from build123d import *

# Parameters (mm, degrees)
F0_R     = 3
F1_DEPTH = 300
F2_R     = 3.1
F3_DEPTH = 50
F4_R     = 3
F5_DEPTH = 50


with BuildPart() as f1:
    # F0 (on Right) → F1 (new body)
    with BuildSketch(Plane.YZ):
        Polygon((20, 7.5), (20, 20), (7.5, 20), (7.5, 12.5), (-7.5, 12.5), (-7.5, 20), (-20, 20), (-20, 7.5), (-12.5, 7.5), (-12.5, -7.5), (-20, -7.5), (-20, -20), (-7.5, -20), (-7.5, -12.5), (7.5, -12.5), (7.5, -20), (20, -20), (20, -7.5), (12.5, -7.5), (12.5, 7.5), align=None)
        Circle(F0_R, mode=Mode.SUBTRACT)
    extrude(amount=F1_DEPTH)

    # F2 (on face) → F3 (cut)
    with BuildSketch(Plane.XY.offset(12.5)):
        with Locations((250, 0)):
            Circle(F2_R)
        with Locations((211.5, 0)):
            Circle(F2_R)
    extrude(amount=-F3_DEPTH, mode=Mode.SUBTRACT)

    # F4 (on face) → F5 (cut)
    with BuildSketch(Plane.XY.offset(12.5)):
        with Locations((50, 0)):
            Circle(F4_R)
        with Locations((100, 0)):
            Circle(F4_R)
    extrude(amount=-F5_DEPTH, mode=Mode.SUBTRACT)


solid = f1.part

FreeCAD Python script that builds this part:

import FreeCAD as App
import Part
import Sketcher
from FreeCAD import Vector
Q = App.Units.Quantity


def add_polygon(sketch, points):
    """Adds a closed chain of lines whose ends are joined by coincident constraints."""
    first, n = sketch.GeometryCount, len(points)
    for a, b in zip(points, points[1:] + points[:1]):
        sketch.addGeometry(Part.LineSegment(App.Vector(*a, 0), App.Vector(*b, 0)), False)
    for i in range(n):
        sketch.addConstraint(Sketcher.Constraint("Coincident", first + i, 2, first + (i + 1) % n, 1))

doc = App.newDocument("Part")
body = doc.addObject("PartDesign::Body", "Body")

sketch1 = doc.addObject("Sketcher::SketchObject", "Sketch")
body.addObject(sketch1)
sketch1.AttachmentSupport = (doc.YZ_Plane, [""])
sketch1.MapMode = "FlatFace"
add_polygon(sketch1, [(20, 7.5), (20, 20), (7.5, 20), (7.5, 12.5), (-7.5, 12.5), (-7.5, 20), (-20, 20), (-20, 7.5), (-12.5, 7.5), (-12.5, -7.5), (-20, -7.5), (-20, -20), (-7.5, -20), (-7.5, -12.5), (7.5, -12.5), (7.5, -20), (20, -20), (20, -7.5), (12.5, -7.5), (12.5, 7.5)])
sketch1.addGeometry(Part.Circle(Vector(0, 0, 0), Vector(0, 0, 1), 3), False)
sketch1.addConstraint([
    Sketcher.Constraint("Vertical", 0),
    Sketcher.Constraint("Horizontal", 1),
    Sketcher.Constraint("Vertical", 2),
    Sketcher.Constraint("Horizontal", 3),
    Sketcher.Constraint("Vertical", 4),
    Sketcher.Constraint("Horizontal", 5),
    Sketcher.Constraint("Vertical", 6),
    Sketcher.Constraint("Horizontal", 7),
    Sketcher.Constraint("Vertical", 8),
    Sketcher.Constraint("Horizontal", 9),
    Sketcher.Constraint("Vertical", 10),
    Sketcher.Constraint("Horizontal", 11),
    Sketcher.Constraint("Vertical", 12),
    Sketcher.Constraint("Horizontal", 13),
    Sketcher.Constraint("Vertical", 14),
    Sketcher.Constraint("Horizontal", 15),
    Sketcher.Constraint("Vertical", 16),
    Sketcher.Constraint("Horizontal", 17),
    Sketcher.Constraint("Vertical", 18),
    Sketcher.Constraint("Horizontal", 19),
    Sketcher.Constraint("Coincident", 20, 3, -1, 1),
    Sketcher.Constraint("Symmetric", 0, 2, 10, 2, -1, 1),
    Sketcher.Constraint("Symmetric", 2, 2, 12, 2, -1, 1),
    Sketcher.Constraint("Symmetric", 4, 2, 14, 2, -1, 1),
    Sketcher.Constraint("Symmetric", 6, 2, 16, 2, -1, 1),
    Sketcher.Constraint("Symmetric", 8, 2, 18, 2, -1, 1),
    Sketcher.Constraint("Symmetric", 1, 2, 4, 2, -2),
    Sketcher.Constraint("Symmetric", 9, 2, 16, 2, -2),
    Sketcher.Constraint("Equal", 15, 0),
    Sketcher.Constraint("Equal", 19, 2),
    Sketcher.Constraint("Equal", 13, 8),
    Sketcher.Constraint("Diameter", 20, Q("6 mm")),
    Sketcher.Constraint("DistanceX", 3, 2, 3, 1, Q("15 mm")),
    Sketcher.Constraint("DistanceX", 1, 2, 1, 1, Q("12.5 mm")),
    Sketcher.Constraint("DistanceX", 7, 1, 7, 2, Q("7.5 mm")),
])
pad1 = doc.addObject("PartDesign::Pad", "Pad")
body.addObject(pad1)
pad1.Profile = sketch1
pad1.Length = 300

sketch2 = doc.addObject("Sketcher::SketchObject", "Sketch001")
body.addObject(sketch2)
sketch2.AttachmentSupport = (doc.XY_Plane, [""])
sketch2.MapMode = "FlatFace"
sketch2.AttachmentOffset = App.Placement(Vector(0, 0, 12.5), App.Rotation())
sketch2.addGeometry([
    Part.Circle(Vector(250, 0, 0), Vector(0, 0, 1), 3.1),
    Part.Circle(Vector(211.5, 0, 0), Vector(0, 0, 1), 3.1),
], False)
sketch2.addConstraint([
    Sketcher.Constraint("Equal", 0, 1),
    Sketcher.Constraint("PointOnObject", 0, 3, -1),
    Sketcher.Constraint("PointOnObject", 1, 3, -1),
    Sketcher.Constraint("Diameter", 0, Q("6.2 mm")),
    Sketcher.Constraint("DistanceX", -1, 1, 0, 3, Q("250 mm")),
    Sketcher.Constraint("DistanceX", -1, 1, 1, 3, Q("211.5 mm")),
])
pocket1 = doc.addObject("PartDesign::Pocket", "Pocket")
body.addObject(pocket1)
pocket1.Profile = sketch2
pocket1.Length = 50

sketch3 = doc.addObject("Sketcher::SketchObject", "Sketch002")
body.addObject(sketch3)
sketch3.AttachmentSupport = (doc.XY_Plane, [""])
sketch3.MapMode = "FlatFace"
sketch3.AttachmentOffset = App.Placement(Vector(0, 0, 12.5), App.Rotation())
sketch3.addGeometry([
    Part.Circle(Vector(50, 0, 0), Vector(0, 0, 1), 3),
    Part.Circle(Vector(100, 0, 0), Vector(0, 0, 1), 3),
], False)
sketch3.addConstraint([
    Sketcher.Constraint("Equal", 0, 1),
    Sketcher.Constraint("PointOnObject", 0, 3, -1),
    Sketcher.Constraint("PointOnObject", 1, 3, -1),
    Sketcher.Constraint("Diameter", 0, Q("6 mm")),
    Sketcher.Constraint("DistanceX", -1, 1, 0, 3, Q("50 mm")),
    Sketcher.Constraint("DistanceX", -1, 1, 1, 3, Q("100 mm")),
])
pocket2 = doc.addObject("PartDesign::Pocket", "Pocket001")
body.addObject(pocket2)
pocket2.Profile = sketch3
pocket2.Length = 50

doc.recompute()
